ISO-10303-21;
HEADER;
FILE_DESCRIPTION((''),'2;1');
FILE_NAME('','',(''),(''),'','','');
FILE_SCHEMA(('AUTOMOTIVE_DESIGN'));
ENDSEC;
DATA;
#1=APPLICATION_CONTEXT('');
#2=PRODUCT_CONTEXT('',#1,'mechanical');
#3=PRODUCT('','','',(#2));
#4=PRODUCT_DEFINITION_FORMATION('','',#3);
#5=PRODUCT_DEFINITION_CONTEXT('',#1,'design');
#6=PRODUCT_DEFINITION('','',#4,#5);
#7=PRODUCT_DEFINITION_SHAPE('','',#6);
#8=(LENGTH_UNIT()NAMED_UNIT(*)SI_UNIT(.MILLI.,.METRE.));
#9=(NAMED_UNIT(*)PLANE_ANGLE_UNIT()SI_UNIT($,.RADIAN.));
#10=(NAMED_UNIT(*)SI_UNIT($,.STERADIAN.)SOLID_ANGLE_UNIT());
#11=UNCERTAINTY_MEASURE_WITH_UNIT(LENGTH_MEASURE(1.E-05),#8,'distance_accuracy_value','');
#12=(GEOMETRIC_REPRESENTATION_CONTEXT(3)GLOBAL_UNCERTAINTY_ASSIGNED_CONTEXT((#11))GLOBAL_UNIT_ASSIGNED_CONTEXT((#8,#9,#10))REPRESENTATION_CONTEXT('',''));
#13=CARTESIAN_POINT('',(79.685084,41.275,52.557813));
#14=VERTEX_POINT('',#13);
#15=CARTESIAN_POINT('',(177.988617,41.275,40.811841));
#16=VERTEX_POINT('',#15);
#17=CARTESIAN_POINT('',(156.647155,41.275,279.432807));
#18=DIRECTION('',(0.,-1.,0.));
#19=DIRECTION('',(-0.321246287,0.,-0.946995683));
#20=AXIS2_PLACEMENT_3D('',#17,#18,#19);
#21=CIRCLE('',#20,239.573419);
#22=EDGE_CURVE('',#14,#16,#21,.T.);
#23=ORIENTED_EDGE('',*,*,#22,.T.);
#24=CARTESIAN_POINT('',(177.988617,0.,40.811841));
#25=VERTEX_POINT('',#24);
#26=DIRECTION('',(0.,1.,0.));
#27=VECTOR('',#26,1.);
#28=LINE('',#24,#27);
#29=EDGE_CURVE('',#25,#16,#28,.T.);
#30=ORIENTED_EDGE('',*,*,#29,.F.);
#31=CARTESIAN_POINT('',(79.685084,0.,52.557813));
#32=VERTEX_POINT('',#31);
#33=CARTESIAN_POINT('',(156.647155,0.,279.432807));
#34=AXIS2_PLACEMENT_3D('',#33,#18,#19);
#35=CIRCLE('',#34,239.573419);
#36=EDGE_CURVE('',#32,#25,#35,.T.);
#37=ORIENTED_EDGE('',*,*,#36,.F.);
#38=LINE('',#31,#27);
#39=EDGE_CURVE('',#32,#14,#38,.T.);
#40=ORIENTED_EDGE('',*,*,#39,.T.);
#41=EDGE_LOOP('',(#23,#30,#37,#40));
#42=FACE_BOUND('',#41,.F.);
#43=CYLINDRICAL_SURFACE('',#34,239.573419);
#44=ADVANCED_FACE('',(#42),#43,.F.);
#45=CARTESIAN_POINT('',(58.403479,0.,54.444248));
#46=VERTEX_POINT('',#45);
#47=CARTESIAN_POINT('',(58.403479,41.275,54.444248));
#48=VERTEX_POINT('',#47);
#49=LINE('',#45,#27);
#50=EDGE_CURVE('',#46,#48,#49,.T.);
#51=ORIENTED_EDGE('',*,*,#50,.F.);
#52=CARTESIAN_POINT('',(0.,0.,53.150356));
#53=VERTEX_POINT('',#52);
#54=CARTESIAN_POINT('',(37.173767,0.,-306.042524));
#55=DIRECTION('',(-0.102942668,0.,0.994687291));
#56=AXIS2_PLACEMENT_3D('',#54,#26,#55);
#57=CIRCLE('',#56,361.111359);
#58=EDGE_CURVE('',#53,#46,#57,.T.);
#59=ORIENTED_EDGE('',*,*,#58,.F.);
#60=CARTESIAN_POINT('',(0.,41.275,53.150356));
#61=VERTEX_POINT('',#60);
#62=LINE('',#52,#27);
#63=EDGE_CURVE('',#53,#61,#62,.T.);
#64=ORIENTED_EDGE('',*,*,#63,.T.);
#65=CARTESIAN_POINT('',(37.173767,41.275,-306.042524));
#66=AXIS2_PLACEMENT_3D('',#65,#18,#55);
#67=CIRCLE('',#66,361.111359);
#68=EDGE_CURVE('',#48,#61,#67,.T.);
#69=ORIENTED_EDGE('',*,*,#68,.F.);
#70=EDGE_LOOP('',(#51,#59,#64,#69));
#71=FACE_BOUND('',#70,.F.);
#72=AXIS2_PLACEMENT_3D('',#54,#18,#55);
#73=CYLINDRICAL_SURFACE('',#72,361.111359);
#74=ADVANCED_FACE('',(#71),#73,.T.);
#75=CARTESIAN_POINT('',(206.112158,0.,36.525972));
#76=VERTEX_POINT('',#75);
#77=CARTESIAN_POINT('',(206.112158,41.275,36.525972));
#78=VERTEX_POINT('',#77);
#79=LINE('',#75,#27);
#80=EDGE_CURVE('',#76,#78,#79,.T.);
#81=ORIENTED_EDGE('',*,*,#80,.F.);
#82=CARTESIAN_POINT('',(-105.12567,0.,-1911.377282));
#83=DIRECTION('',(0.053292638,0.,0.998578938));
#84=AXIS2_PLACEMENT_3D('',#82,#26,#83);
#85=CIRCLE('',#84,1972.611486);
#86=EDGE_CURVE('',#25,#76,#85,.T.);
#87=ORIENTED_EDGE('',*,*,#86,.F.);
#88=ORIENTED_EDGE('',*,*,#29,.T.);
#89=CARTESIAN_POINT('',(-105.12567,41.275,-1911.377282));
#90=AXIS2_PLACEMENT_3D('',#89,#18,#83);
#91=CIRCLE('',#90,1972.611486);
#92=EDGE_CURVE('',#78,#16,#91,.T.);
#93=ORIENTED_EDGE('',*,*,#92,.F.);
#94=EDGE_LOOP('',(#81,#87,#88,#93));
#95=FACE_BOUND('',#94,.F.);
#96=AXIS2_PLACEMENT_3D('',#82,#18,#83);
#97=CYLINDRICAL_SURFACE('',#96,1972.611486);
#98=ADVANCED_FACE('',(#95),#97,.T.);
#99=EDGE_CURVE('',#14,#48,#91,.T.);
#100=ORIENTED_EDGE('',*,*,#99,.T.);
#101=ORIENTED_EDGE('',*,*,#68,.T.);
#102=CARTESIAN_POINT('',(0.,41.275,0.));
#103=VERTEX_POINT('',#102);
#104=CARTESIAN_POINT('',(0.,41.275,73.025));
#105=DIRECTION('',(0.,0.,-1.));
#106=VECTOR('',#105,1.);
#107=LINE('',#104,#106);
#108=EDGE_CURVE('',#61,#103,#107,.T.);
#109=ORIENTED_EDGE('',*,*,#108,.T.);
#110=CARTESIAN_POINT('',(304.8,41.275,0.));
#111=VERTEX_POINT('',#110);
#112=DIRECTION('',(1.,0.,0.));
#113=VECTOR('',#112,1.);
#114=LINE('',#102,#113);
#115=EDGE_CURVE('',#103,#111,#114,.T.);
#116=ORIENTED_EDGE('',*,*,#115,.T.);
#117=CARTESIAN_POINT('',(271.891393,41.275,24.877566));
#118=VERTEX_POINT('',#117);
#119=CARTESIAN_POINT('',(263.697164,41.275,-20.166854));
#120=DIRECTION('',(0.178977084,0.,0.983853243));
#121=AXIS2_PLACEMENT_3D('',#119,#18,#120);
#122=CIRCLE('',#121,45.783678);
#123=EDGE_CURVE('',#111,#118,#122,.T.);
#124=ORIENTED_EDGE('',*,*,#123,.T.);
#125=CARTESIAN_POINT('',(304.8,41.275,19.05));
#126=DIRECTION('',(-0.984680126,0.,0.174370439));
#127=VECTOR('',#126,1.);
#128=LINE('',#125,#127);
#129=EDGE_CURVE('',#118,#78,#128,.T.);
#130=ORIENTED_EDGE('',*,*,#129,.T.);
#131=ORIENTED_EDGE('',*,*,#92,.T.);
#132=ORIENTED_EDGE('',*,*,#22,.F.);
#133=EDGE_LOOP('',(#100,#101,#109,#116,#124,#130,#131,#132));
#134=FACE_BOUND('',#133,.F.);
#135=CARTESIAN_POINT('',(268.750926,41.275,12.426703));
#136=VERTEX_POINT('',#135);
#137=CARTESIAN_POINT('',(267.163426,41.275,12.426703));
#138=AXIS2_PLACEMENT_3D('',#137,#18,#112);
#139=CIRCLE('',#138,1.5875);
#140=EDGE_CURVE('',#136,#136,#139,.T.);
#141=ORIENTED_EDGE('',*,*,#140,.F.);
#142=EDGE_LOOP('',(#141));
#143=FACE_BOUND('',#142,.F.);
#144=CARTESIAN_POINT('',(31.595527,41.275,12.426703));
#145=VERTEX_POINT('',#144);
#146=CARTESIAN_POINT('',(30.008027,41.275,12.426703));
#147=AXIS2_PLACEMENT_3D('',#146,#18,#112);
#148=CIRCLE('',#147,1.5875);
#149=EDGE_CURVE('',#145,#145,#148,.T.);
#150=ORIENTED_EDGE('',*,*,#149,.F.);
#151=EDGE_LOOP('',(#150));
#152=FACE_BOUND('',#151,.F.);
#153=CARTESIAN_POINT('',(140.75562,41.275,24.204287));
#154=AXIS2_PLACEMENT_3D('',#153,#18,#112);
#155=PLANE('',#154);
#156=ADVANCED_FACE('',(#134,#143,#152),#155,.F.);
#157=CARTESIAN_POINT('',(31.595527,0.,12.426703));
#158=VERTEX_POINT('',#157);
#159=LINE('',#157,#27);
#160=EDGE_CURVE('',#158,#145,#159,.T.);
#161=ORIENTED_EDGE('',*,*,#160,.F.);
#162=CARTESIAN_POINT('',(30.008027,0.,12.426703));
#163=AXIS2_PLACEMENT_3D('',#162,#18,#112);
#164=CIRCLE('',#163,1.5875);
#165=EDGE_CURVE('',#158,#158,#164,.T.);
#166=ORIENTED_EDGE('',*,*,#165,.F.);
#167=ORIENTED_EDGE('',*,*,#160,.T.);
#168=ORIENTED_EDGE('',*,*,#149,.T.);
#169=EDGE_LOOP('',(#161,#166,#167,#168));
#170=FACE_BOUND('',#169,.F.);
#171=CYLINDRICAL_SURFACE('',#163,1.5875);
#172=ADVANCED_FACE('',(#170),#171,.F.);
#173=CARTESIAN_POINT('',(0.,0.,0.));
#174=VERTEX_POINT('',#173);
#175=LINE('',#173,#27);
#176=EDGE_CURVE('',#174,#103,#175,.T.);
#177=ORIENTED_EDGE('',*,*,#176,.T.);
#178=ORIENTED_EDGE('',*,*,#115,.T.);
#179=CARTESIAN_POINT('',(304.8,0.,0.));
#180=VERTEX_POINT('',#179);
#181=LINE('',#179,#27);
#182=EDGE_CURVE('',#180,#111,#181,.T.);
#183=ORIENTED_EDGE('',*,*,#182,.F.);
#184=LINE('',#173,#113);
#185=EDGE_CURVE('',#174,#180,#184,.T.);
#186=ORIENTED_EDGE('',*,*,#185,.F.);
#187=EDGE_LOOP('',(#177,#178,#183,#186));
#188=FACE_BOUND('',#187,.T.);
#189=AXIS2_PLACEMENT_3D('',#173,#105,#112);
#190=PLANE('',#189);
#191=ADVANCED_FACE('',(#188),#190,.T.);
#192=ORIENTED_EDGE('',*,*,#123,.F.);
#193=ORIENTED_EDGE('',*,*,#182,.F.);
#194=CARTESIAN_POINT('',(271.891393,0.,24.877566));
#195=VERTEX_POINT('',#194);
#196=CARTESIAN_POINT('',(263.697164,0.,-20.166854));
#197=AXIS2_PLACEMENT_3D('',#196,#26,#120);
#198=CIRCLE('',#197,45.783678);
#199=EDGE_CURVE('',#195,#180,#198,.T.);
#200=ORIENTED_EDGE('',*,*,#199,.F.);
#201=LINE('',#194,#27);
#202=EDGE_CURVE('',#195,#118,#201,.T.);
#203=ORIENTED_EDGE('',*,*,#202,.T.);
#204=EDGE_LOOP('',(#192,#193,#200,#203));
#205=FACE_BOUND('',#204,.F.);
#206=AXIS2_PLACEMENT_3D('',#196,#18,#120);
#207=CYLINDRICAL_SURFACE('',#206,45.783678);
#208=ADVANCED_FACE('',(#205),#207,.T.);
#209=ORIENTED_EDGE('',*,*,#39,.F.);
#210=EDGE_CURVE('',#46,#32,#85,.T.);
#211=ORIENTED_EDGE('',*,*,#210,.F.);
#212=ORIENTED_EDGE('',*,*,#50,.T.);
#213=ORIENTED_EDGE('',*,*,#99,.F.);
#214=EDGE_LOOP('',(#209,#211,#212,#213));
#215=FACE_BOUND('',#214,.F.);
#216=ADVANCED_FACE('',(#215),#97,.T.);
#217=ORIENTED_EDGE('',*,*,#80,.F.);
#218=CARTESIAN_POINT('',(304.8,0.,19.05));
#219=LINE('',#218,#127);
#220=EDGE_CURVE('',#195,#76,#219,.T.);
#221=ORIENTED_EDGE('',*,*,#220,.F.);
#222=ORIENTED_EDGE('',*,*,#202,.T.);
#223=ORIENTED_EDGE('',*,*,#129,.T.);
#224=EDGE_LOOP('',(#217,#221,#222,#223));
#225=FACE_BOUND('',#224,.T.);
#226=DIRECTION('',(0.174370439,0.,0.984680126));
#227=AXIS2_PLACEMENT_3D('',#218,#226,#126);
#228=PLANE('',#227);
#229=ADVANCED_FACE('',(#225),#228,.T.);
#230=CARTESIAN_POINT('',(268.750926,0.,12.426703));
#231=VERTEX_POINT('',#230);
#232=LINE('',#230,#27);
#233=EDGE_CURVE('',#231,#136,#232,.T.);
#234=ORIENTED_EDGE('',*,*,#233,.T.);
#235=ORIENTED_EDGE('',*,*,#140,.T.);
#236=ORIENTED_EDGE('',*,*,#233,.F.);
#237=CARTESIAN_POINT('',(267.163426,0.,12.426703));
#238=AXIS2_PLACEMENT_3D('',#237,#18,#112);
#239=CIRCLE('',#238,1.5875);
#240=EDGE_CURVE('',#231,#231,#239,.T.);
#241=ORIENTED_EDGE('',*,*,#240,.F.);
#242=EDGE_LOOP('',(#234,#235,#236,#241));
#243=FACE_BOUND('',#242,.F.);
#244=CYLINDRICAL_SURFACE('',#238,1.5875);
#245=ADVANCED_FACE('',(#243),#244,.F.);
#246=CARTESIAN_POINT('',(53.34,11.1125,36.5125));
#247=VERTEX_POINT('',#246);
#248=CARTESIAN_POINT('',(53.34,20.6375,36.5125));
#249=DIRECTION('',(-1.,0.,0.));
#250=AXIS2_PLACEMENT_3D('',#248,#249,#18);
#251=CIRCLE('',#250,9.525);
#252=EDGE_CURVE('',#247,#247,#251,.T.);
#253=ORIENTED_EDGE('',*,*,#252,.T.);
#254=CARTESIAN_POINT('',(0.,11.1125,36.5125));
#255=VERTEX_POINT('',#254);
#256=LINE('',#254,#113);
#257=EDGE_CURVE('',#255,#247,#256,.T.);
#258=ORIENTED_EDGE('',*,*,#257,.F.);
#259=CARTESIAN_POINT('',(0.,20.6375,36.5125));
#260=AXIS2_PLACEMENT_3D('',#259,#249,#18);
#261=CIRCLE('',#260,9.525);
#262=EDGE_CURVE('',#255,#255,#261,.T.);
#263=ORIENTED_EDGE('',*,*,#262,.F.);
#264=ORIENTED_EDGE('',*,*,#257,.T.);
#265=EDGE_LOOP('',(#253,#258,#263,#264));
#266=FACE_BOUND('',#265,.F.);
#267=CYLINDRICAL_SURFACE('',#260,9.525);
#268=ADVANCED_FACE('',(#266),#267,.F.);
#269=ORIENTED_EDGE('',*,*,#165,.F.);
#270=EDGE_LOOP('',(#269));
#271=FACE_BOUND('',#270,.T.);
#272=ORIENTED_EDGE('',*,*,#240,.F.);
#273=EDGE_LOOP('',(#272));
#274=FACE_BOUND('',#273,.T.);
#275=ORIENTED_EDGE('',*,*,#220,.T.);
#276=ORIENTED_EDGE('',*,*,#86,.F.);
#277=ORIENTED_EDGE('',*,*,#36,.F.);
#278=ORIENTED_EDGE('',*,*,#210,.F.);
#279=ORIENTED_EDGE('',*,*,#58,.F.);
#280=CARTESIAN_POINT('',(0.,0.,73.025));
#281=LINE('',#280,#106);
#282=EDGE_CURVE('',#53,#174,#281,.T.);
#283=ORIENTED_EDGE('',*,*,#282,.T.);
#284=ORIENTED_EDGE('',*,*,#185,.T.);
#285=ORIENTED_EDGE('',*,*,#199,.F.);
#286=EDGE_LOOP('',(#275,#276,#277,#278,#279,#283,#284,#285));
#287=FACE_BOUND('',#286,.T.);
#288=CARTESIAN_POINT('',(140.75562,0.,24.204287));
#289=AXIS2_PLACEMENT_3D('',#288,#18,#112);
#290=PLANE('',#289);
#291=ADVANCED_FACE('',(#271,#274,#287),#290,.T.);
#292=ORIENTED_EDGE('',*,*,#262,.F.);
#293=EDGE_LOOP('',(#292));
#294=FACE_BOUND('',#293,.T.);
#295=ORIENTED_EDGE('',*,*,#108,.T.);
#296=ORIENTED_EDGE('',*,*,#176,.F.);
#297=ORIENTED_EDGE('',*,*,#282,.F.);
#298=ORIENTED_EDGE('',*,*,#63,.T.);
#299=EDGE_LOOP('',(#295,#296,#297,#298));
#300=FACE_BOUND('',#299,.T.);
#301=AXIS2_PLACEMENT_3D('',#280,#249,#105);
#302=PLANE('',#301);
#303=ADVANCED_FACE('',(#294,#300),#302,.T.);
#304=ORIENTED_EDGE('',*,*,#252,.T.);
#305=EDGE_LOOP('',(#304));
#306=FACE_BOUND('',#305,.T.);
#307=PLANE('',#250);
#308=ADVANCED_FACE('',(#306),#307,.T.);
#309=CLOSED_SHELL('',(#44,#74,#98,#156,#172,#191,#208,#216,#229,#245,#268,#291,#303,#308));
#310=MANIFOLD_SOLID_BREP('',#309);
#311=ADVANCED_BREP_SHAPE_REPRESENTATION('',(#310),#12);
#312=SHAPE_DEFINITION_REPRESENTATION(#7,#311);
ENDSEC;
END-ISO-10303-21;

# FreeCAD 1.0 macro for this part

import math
import FreeCAD as App
import Part
import Sketcher
Q = App.Units.Quantity


def add_polygon(sketch, points):
    """Adds a closed chain of lines whose ends are joined by coincident constraints."""
    first, n = sketch.GeometryCount, len(points)
    for a, b in zip(points, points[1:] + points[:1]):
        sketch.addGeometry(Part.LineSegment(App.Vector(*a, 0), App.Vector(*b, 0)), False)
    for i in range(n):
        sketch.addConstraint(Sketcher.Constraint("Coincident", first + i, 2, first + (i + 1) % n, 1))

doc = App.newDocument("Part")
body = doc.addObject("PartDesign::Body", "Body")

# Sketch on XZ plane
sketch1 = body.newObject("Sketcher::SketchObject", "Sketch")
sketch1.AttachmentSupport = (doc.getObject("XZ_Plane"), [""])
sketch1.MapMode = "FlatFace"
add_polygon(sketch1, [(305, 0), (305, 19), (0, 73), (0, 0)])  # lines 0-3
sketch1.addConstraint(Sketcher.Constraint("Vertical", 0))
sketch1.addConstraint(Sketcher.Constraint("Vertical", 2))
sketch1.addConstraint(Sketcher.Constraint("Horizontal", 3))
sketch1.addConstraint(Sketcher.Constraint("Coincident", 2, 2, -1, 1))
sketch1.addConstraint(Sketcher.Constraint("DistanceX", 3, 1, 3, 2, Q("12 in")))
sketch1.addConstraint(Sketcher.Constraint("DistanceY", 0, 1, 0, 2, Q("0.75 in")))
sketch1.addConstraint(Sketcher.Constraint("DistanceY", 2, 2, 2, 1, Q("2.875 in")))
pad1 = body.newObject("PartDesign::Pad", "Pad")
pad1.Profile = sketch1
pad1.Length = Q("1.625 in")
pad1.Reversed = True

# Sketch on YZ plane
sketch2 = body.newObject("Sketcher::SketchObject", "Sketch001")
sketch2.AttachmentSupport = (doc.getObject("YZ_Plane"), [""])
sketch2.MapMode = "FlatFace"
sketch2.addGeometry(Part.Circle(App.Vector(21, 37, 0), App.Vector(0, 0, 1), 10), False)
sketch2.addConstraint(Sketcher.Constraint("Diameter", 0, Q("0.75 in")))
sketch2.addConstraint(Sketcher.Constraint("DistanceX", -1, 1, 0, 3, Q("0.8125 in")))
sketch2.addConstraint(Sketcher.Constraint("DistanceY", -1, 1, 0, 3, Q("1.4375 in")))
pocket1 = body.newObject("PartDesign::Pocket", "Pocket")
pocket1.Profile = sketch2
pocket1.Length = Q("2.1 in")
pocket1.Reversed = True

# Sketch on XZ plane
sketch3 = body.newObject("Sketcher::SketchObject", "Sketch002")
sketch3.AttachmentSupport = (doc.getObject("XZ_Plane"), [""])
sketch3.MapMode = "FlatFace"
sketch3.addGeometry(Part.ArcOfCircle(Part.Circle(App.Vector(-105.12567, -1911.377282, 0), App.Vector(0, 0, 1), 1972.611486), math.radians(80.921961), math.radians(86.94511)), False)
sketch3.addGeometry(Part.LineSegment(App.Vector(206.112158, 36.525972, 0), App.Vector(0, 73.025, 0)), False)
sketch3.addGeometry(Part.LineSegment(App.Vector(0, 73.025, 0), App.Vector(0, 58.431, 0)), False)
sketch3.addGeometry(Part.LineSegment(App.Vector(304.8, 19.05, 0), App.Vector(271.891393, 24.877566, 0)), False)
sketch3.addGeometry(Part.ArcOfCircle(Part.Circle(App.Vector(263.697164, -20.166854, 0), App.Vector(0, 0, 1), 45.783678), math.radians(26.134594), math.radians(79.689817)), False)
sketch3.addGeometry(Part.LineSegment(App.Vector(304.8, 0, 0), App.Vector(304.8, 19.05, 0)), False)
sketch3.addConstraint(Sketcher.Constraint("Coincident", 0, 1, 1, 1))
sketch3.addConstraint(Sketcher.Constraint("Coincident", 1, 2, 2, 1))
sketch3.addConstraint(Sketcher.Constraint("Coincident", 2, 2, 0, 2))
sketch3.addConstraint(Sketcher.Constraint("Coincident", 3, 2, 4, 2))
sketch3.addConstraint(Sketcher.Constraint("Coincident", 4, 1, 5, 1))
sketch3.addConstraint(Sketcher.Constraint("Coincident", 5, 2, 3, 1))
sketch3.addConstraint(Sketcher.Constraint("Vertical", 2))
sketch3.addConstraint(Sketcher.Constraint("Vertical", 5))
sketch3.addConstraint(Sketcher.Constraint("PointOnObject", 1, 2, -2))
sketch3.addConstraint(Sketcher.Constraint("PointOnObject", 4, 1, -1))
sketch3.addConstraint(Sketcher.Constraint("Parallel", 1, 3))
sketch3.addConstraint(Sketcher.Constraint("DistanceX", -1, 1, 4, 1, Q("12 in")))
sketch3.addConstraint(Sketcher.Constraint("DistanceY", 5, 1, 5, 2, Q("0.75 in")))
sketch3.addConstraint(Sketcher.Constraint("DistanceY", -1, 1, 1, 2, Q("2.875 in")))
sketch3.addConstraint(Sketcher.Constraint("DistanceY", 2, 2, 2, 1, 14.594))
sketch3.addConstraint(Sketcher.Constraint("Radius", 0, 1972.611486))
sketch3.addConstraint(Sketcher.Constraint("Radius", 4, 45.783678))
sketch3.addConstraint(Sketcher.Constraint("DistanceX", 0, 3, -1, 1, 105.12567))
sketch3.addConstraint(Sketcher.Constraint("DistanceY", 0, 3, 4, 3, 1891.210428))
sketch3.addConstraint(Sketcher.Constraint("DistanceX", 4, 3, 3, 2, 8.194229))
pocket2 = body.newObject("PartDesign::Pocket", "Pocket001")
pocket2.Profile = sketch3
pocket2.Length = Q("1.64 in")

# Sketch on XZ plane
sketch4 = body.newObject("Sketcher::SketchObject", "Sketch003")
sketch4.AttachmentSupport = (doc.getObject("XZ_Plane"), [""])
sketch4.MapMode = "FlatFace"
sketch4.addGeometry(Part.ArcOfCircle(Part.Circle(App.Vector(37, -306, 0), App.Vector(0, 0, 1), 361), math.radians(86.63), math.radians(95.91)), False)
sketch4.addGeometry(Part.ArcOfCircle(Part.Circle(App.Vector(-105, -1911, 0), App.Vector(0, 0, 1), 1973), math.radians(85.24), math.radians(86.95)), False)
sketch4.addGeometry(Part.LineSegment(App.Vector(0, 58, 0), App.Vector(0, 53, 0)), False)
sketch4.addGeometry(Part.ArcOfCircle(Part.Circle(App.Vector(-105, -1911, 0), App.Vector(0, 0, 1), 1973), math.radians(81.75), math.radians(84.62)), False)
sketch4.addGeometry(Part.ArcOfCircle(Part.Circle(App.Vector(157, 279, 0), App.Vector(0, 0, 1), 240), math.radians(-109), math.radians(-85)), False)
sketch4.addConstraint(Sketcher.Constraint("Coincident", 0, 1, 1, 1))
sketch4.addConstraint(Sketcher.Constraint("Coincident", 1, 2, 2, 1))
sketch4.addConstraint(Sketcher.Constraint("Coincident", 2, 2, 0, 2))
sketch4.addConstraint(Sketcher.Constraint("Coincident", 3, 1, 4, 2))
sketch4.addConstraint(Sketcher.Constraint("Coincident", 4, 1, 3, 2))
sketch4.addConstraint(Sketcher.Constraint("Vertical", 2))
sketch4.addConstraint(Sketcher.Constraint("Coincident", 3, 3, 1, 3))
sketch4.addConstraint(Sketcher.Constraint("Equal", 1, 3))
sketch4.addConstraint(Sketcher.Constraint("PointOnObject", 2, 2, -2))
sketch4.addConstraint(Sketcher.Constraint("Radius", 0, 361.111359))
sketch4.addConstraint(Sketcher.Constraint("Radius", 4, 239.573419))
sketch4.addConstraint(Sketcher.Constraint("Radius", 1, 1972.611485))
sketch4.addConstraint(Sketcher.Constraint("DistanceY", -1, 1, 1, 2, 58.431))
sketch4.addConstraint(Sketcher.Constraint("DistanceY", 2, 2, 2, 1, 5.280644))
sketch4.addConstraint(Sketcher.Constraint("DistanceX", 1, 3, -1, 1, 105.12567))
sketch4.addConstraint(Sketcher.Constraint("DistanceX", -1, 1, 0, 1, 58.403479))
sketch4.addConstraint(Sketcher.Constraint("DistanceY", -1, 1, 3, 1, 40.811841))
sketch4.addConstraint(Sketcher.Constraint("DistanceX", 0, 3, 4, 3, 119.473389))
pocket3 = body.newObject("PartDesign::Pocket", "Pocket002")
pocket3.Profile = sketch4
pocket3.Length = Q("1.66 in")

# Sketch on XZ plane
sketch5 = body.newObject("Sketcher::SketchObject", "Sketch004")
sketch5.AttachmentSupport = (doc.getObject("XZ_Plane"), [""])
sketch5.MapMode = "FlatFace"
sketch5.addGeometry(Part.Circle(App.Vector(30, 12.4, 0), App.Vector(0, 0, 1), 1.6), False)
sketch5.addGeometry(Part.Circle(App.Vector(267.2, 12.4, 0), App.Vector(0, 0, 1), 1.6), False)
sketch5.addConstraint(Sketcher.Constraint("Equal", 0, 1))
sketch5.addConstraint(Sketcher.Constraint("Horizontal", 0, 3, 1, 3))
sketch5.addConstraint(Sketcher.Constraint("Diameter", 0, Q("0.125 in")))
sketch5.addConstraint(Sketcher.Constraint("DistanceX", 0, 3, 1, 3, 237.155398))
sketch5.addConstraint(Sketcher.Constraint("DistanceX", -1, 1, 0, 3, 30.008027))
sketch5.addConstraint(Sketcher.Constraint("DistanceY", -1, 1, 0, 3, 12.426703))
pocket4 = body.newObject("PartDesign::Pocket", "Pocket003")
pocket4.Profile = sketch5
pocket4.Length = Q("1.64 in")

doc.recompute()
